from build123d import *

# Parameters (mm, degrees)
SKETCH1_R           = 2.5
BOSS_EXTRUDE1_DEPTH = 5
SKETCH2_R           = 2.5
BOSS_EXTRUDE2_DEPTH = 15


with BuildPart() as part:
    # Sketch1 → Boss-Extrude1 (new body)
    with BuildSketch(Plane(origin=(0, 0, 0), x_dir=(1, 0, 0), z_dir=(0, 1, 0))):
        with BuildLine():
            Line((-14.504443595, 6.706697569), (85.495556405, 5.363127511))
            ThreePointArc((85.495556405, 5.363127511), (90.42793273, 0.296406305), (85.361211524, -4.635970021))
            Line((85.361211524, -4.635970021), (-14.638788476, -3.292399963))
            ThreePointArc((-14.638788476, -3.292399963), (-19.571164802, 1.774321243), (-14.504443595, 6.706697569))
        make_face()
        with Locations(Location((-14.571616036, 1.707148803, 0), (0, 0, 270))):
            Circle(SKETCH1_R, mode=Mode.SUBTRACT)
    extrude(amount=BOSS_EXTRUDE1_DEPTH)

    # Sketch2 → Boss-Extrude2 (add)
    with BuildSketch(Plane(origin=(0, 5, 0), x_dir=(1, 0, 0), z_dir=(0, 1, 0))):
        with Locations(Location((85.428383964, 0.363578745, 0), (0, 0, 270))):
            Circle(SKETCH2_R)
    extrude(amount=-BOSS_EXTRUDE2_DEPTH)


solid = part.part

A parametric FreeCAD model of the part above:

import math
import FreeCAD as App
import Part
import Sketcher

V = App.Vector
Q = App.Units.Quantity

doc = App.newDocument("Part")
params = doc.addObject("Spreadsheet::Sheet", "Params")
for row, (alias, value) in enumerate([
    ("sketch1_diameter", "5 mm"),
    ("sketch1_radius", "5 mm"),
    ("pad1_length", "5 mm"),
    ("sketch2_diameter", "5 mm"),
    ("pad2_length", "15 mm"),
], start=1):
    params.set(f"A{row}", alias)
    params.set(f"B{row}", "=" + value)
    params.setAlias(f"B{row}", alias)

body = doc.addObject("PartDesign::Body", "Body")

# Sketch on XZ plane
sketch1 = body.newObject("Sketcher::SketchObject", "Sketch")
sketch1.AttachmentSupport = (doc.getObject("XZ_Plane"), [""])
sketch1.MapMode = "FlatFace"
sketch1.addGeometry([
    Part.LineSegment(V(85.5, -5.4, 0), V(-14.5, -6.7, 0)),  # 0
    Part.ArcOfCircle(Part.Circle(V(-14.6, -1.7, 0), V(0, 0, 1), 5), math.radians(91), math.radians(271)),  # 1
    Part.LineSegment(V(-14.6, 3.3, 0), V(85.4, 4.6, 0)),  # 2
    Part.ArcOfCircle(Part.Circle(V(85.4, -0.4, 0), V(0, 0, 1), 5), math.radians(-89), math.radians(91)),  # 3
    Part.Circle(V(-14.6, -1.7, 0), V(0, 0, 1), 2.5),  # 4
], False)
sketch1.addConstraint([
    Sketcher.Constraint("Tangent", 0, 2, 1, 2),
    Sketcher.Constraint("Tangent", 1, 1, 2, 1),
    Sketcher.Constraint("Tangent", 2, 2, 3, 2),
    Sketcher.Constraint("Tangent", 3, 1, 0, 1),
    Sketcher.Constraint("Coincident", 4, 3, 1, 3),
    Sketcher.Constraint("Equal", 1, 3),
    Sketcher.Constraint("Diameter", 4, Q("5 mm")),
    Sketcher.Constraint("Radius", 1, Q("5 mm")),
    Sketcher.Constraint("DistanceX", 1, 3, 3, 3, Q("100 mm")),
    Sketcher.Constraint("DistanceY", -1, 1, 1, 1, Q("3.2924 mm")),
    Sketcher.Constraint("DistanceY", 3, 3, -1, 1, Q("0.363579 mm")),
    Sketcher.Constraint("DistanceX", 1, 1, -1, 1, Q("14.638788 mm")),
])
sketch1.setExpression("Constraints[6]", "Params.sketch1_diameter")
sketch1.setExpression("Constraints[7]", "Params.sketch1_radius")
pad1 = body.newObject("PartDesign::Pad", "Pad")
pad1.Profile = sketch1
pad1.setExpression("Length", "Params.pad1_length")
pad1.Reversed = True

# Sketch on XZ plane
sketch2 = body.newObject("Sketcher::SketchObject", "Sketch001")
sketch2.AttachmentSupport = (doc.getObject("XZ_Plane"), [""])
sketch2.MapMode = "FlatFace"
sketch2.AttachmentOffset = App.Placement(V(0, 0, -5), App.Rotation())
sketch2.addGeometry(Part.Circle(V(85.4, -0.4, 0), V(0, 0, 1), 2.5), False)
sketch2.addConstraint([
    Sketcher.Constraint("Diameter", 0, Q("5 mm")),
    Sketcher.Constraint("DistanceY", 0, 3, -1, 1, Q("0.363579 mm")),
    Sketcher.Constraint("DistanceX", -1, 1, 0, 3, Q("85.428384 mm")),
])
sketch2.setExpression("Constraints[0]", "Params.sketch2_diameter")
pad2 = body.newObject("PartDesign::Pad", "Pad001")
pad2.Profile = sketch2
pad2.setExpression("Length", "Params.pad2_length")

doc.recompute()
